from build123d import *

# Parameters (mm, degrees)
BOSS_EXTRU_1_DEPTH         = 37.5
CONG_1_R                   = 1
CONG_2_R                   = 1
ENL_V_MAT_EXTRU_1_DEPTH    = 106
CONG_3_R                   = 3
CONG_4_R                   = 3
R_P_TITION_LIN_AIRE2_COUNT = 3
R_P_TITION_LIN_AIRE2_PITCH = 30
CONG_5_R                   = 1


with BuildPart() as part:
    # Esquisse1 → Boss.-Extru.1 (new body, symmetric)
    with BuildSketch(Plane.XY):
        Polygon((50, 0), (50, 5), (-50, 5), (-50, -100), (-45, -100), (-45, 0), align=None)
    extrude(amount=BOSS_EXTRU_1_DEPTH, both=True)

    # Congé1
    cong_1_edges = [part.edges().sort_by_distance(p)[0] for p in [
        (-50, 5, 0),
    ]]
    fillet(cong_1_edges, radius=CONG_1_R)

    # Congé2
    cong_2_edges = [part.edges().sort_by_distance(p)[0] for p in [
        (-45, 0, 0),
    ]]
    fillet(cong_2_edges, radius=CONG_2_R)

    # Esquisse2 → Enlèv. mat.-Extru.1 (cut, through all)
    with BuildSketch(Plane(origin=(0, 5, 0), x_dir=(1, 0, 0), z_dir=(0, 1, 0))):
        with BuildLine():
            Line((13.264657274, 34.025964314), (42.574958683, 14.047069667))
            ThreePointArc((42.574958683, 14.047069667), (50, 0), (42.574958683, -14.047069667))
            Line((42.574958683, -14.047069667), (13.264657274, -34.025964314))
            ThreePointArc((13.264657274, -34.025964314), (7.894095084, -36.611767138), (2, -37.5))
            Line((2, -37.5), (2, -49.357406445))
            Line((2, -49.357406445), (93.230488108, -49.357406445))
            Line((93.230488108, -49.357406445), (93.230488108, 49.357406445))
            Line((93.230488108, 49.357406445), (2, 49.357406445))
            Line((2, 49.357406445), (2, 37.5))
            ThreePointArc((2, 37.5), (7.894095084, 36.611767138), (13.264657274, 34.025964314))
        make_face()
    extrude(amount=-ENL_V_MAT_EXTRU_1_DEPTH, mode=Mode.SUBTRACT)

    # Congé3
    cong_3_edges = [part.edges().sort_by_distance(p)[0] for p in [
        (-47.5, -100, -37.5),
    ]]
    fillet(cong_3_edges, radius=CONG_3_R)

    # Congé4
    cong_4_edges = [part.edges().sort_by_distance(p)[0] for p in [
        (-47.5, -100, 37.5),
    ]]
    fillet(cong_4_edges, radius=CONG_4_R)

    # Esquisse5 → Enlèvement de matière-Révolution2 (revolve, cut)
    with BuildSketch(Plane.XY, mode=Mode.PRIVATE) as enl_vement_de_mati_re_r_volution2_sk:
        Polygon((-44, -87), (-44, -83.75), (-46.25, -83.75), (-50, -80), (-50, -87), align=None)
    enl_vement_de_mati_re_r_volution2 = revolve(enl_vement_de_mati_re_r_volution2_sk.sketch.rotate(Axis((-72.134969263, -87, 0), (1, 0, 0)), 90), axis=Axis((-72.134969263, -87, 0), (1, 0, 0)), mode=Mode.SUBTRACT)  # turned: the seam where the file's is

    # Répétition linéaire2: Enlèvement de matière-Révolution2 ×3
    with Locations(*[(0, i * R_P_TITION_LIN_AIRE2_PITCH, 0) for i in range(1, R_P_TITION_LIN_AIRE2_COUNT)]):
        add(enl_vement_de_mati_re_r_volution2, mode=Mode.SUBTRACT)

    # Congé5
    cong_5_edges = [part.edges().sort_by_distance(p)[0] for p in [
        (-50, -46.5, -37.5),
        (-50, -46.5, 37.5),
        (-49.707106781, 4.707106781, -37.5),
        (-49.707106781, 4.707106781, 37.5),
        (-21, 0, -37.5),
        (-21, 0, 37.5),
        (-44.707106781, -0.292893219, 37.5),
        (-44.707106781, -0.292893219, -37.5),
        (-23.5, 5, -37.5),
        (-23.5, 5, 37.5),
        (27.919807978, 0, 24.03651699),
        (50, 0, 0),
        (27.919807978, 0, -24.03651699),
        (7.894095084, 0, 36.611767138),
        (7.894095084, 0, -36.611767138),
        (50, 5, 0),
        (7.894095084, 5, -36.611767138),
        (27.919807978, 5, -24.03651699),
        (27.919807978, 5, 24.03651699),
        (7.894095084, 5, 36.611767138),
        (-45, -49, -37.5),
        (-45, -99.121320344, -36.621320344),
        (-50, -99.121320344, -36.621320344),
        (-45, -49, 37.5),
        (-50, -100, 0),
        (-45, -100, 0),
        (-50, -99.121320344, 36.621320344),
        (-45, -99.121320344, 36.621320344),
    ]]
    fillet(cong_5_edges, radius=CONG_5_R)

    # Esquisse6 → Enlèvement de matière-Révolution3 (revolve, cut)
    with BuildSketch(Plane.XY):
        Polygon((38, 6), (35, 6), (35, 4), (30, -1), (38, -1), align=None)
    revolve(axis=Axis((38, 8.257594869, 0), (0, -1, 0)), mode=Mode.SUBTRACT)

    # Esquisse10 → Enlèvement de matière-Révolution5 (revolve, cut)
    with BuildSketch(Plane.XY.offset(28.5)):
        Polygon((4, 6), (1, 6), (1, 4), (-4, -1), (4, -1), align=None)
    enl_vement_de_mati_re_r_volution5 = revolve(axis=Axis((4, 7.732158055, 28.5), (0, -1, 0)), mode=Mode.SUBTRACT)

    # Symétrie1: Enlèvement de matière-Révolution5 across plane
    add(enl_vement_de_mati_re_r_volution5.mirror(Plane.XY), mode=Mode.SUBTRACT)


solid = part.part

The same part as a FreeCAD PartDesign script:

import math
import FreeCAD as App
import Part
import Sketcher

V = App.Vector
Q = App.Units.Quantity


def edges_at(feature, points):
    """Names of the edges that pass closest to the given points."""
    edges = feature.Shape.Edges
    near = lambda p: min(range(len(edges)), key=lambda i: edges[i].distToShape(Part.Vertex(*p))[0])
    return sorted({f"Edge{near(p) + 1}" for p in points})


def add_polygon(sketch, points):
    """Adds a closed chain of lines whose ends are joined by coincident constraints."""
    first, n = sketch.GeometryCount, len(points)
    for a, b in zip(points, points[1:] + points[:1]):
        sketch.addGeometry(Part.LineSegment(App.Vector(*a, 0), App.Vector(*b, 0)), False)
    for i in range(n):
        sketch.addConstraint(Sketcher.Constraint("Coincident", first + i, 2, first + (i + 1) % n, 1))

doc = App.newDocument("Part")
body = doc.addObject("PartDesign::Body", "Body")

# Sketch on XY plane
sketch1 = doc.addObject("Sketcher::SketchObject", "Sketch")
body.addObject(sketch1)
sketch1.AttachmentSupport = (doc.XY_Plane, [""])
sketch1.MapMode = "FlatFace"
add_polygon(sketch1, [(50, 0), (50, 5), (-50, 5), (-50, -100), (-45, -100), (-45, 0)])  # lines 0-5
sketch1.addConstraint(Sketcher.Constraint("Vertical", 0))
sketch1.addConstraint(Sketcher.Constraint("Horizontal", 1))
sketch1.addConstraint(Sketcher.Constraint("Vertical", 2))
sketch1.addConstraint(Sketcher.Constraint("Horizontal", 3))
sketch1.addConstraint(Sketcher.Constraint("Vertical", 4))
sketch1.addConstraint(Sketcher.Constraint("Horizontal", 5))
sketch1.addConstraint(Sketcher.Constraint("PointOnObject", 4, 2, -1))
sketch1.addConstraint(Sketcher.Constraint("Equal", 3, 0))
sketch1.addConstraint(Sketcher.Constraint("Equal", 1, 4))
sketch1.addConstraint(Sketcher.Constraint("DistanceX", 1, 2, 1, 1, 100.0))
sketch1.addConstraint(Sketcher.Constraint("DistanceX", 3, 1, 3, 2, 5.0))
sketch1.addConstraint(Sketcher.Constraint("DistanceX", -1, 1, 0, 2, 50.0))
pad1 = doc.addObject("PartDesign::Pad", "Pad")
body.addObject(pad1)
pad1.Profile = sketch1
pad1.Length = 75
pad1.Midplane = True
doc.recompute()

fillet = doc.addObject("PartDesign::Fillet", "Fillet")
body.addObject(fillet)
fillet.Base = (pad1, edges_at(pad1, [(-50, 5, 0)]))
fillet.Radius = 1
doc.recompute()

fillet2 = doc.addObject("PartDesign::Fillet", "Fillet001")
body.addObject(fillet2)
fillet2.Base = (fillet, edges_at(fillet, [(-45, 0, 0)]))
fillet2.Radius = 1

# Sketch on XZ plane
sketch2 = doc.addObject("Sketcher::SketchObject", "Sketch001")
body.addObject(sketch2)
sketch2.AttachmentSupport = (doc.XZ_Plane, [""])
sketch2.MapMode = "FlatFace"
sketch2.AttachmentOffset = App.Placement(V(0, 0, -5), App.Rotation())
sketch2.addGeometry(Part.LineSegment(V(13, -34, 0), V(43, -14, 0)), False)
sketch2.addGeometry(Part.ArcOfCircle(Part.Circle(V(33, 0, 0), V(0, 0, 1), 17), math.radians(-56), math.radians(56)), False)
sketch2.addGeometry(Part.LineSegment(V(43, 14, 0), V(13, 34, 0)), False)
sketch2.addGeometry(Part.ArcOfCircle(Part.Circle(V(2, 17, 0), V(0, 0, 1), 20), math.radians(56), math.radians(90)), False)
sketch2.addGeometry(Part.LineSegment(V(2, 38, 0), V(2, 49, 0)), False)
sketch2.addGeometry(Part.LineSegment(V(2, 49, 0), V(93, 49, 0)), False)
sketch2.addGeometry(Part.LineSegment(V(93, 49, 0), V(93, -49, 0)), False)
sketch2.addGeometry(Part.LineSegment(V(93, -49, 0), V(2, -49, 0)), False)
sketch2.addGeometry(Part.LineSegment(V(2, -49, 0), V(2, -38, 0)), False)
sketch2.addGeometry(Part.ArcOfCircle(Part.Circle(V(2, -17, 0), V(0, 0, 1), 20), math.radians(-90), math.radians(-56)), False)
sketch2.addConstraint(Sketcher.Constraint("Tangent", 0, 2, 1, 1))
sketch2.addConstraint(Sketcher.Constraint("Tangent", 1, 2, 2, 1))
sketch2.addConstraint(Sketcher.Constraint("Tangent", 2, 2, 3, 1))
sketch2.addConstraint(Sketcher.Constraint("Coincident", 3, 2, 4, 1))
sketch2.addConstraint(Sketcher.Constraint("Coincident", 4, 2, 5, 1))
sketch2.addConstraint(Sketcher.Constraint("Coincident", 5, 2, 6, 1))
sketch2.addConstraint(Sketcher.Constraint("Coincident", 6, 2, 7, 1))
sketch2.addConstraint(Sketcher.Constraint("Coincident", 7, 2, 8, 1))
sketch2.addConstraint(Sketcher.Constraint("Coincident", 8, 2, 9, 1))
sketch2.addConstraint(Sketcher.Constraint("Tangent", 9, 2, 0, 1))
sketch2.addConstraint(Sketcher.Constraint("Vertical", 4))
sketch2.addConstraint(Sketcher.Constraint("Horizontal", 5))
sketch2.addConstraint(Sketcher.Constraint("Vertical", 6))
sketch2.addConstraint(Sketcher.Constraint("Horizontal", 7))
sketch2.addConstraint(Sketcher.Constraint("Vertical", 8))
sketch2.addConstraint(Sketcher.Constraint("Equal", 3, 9))
sketch2.addConstraint(Sketcher.Constraint("Symmetric", 3, 3, 9, 3, -1))
sketch2.addConstraint(Sketcher.Constraint("Symmetric", 4, 2, 7, 2, -1))
sketch2.addConstraint(Sketcher.Constraint("PointOnObject", 1, 3, -1))
sketch2.addConstraint(Sketcher.Constraint("Vertical", 9, 3, 3, 2))
sketch2.addConstraint(Sketcher.Constraint("Radius", 1, 17.0))
sketch2.addConstraint(Sketcher.Constraint("Radius", 3, 20.0))
sketch2.addConstraint(Sketcher.Constraint("DistanceX", -1, 1, 1, 3, 33.0))
sketch2.addConstraint(Sketcher.Constraint("DistanceX", -1, 1, 3, 3, 2.0))
sketch2.addConstraint(Sketcher.Constraint("DistanceY", 9, 3, 3, 3, 35.0))
sketch2.addConstraint(Sketcher.Constraint("DistanceX", 5, 1, 5, 2, 91.230488))
sketch2.addConstraint(Sketcher.Constraint("DistanceY", 4, 1, 4, 2, 11.857406))
pocket1 = doc.addObject("PartDesign::Pocket", "Pocket")
body.addObject(pocket1)
pocket1.Profile = sketch2
pocket1.Type = "ThroughAll"
pocket1.Reversed = True
doc.recompute()

fillet3 = doc.addObject("PartDesign::Fillet", "Fillet002")
body.addObject(fillet3)
fillet3.Base = (pocket1, edges_at(pocket1, [(-47.5, -100, -37.5)]))
fillet3.Radius = 3
doc.recompute()

fillet4 = doc.addObject("PartDesign::Fillet", "Fillet003")
body.addObject(fillet4)
fillet4.Base = (fillet3, edges_at(fillet3, [(-47.5, -100, 37.5)]))
fillet4.Radius = 3

# Sketch on XY plane
sketch3 = doc.addObject("Sketcher::SketchObject", "Sketch002")
body.addObject(sketch3)
sketch3.AttachmentSupport = (doc.XY_Plane, [""])
sketch3.MapMode = "FlatFace"
add_polygon(sketch3, [(-44, -87), (-44, -83.8), (-46.2, -83.8), (-50, -80), (-50, -87)])  # lines 0-4
sketch3.addGeometry(Part.LineSegment(V(-50, -87, 0), V(-44, -87, 0)), True)  # axis
sketch3.addConstraint(Sketcher.Constraint("Vertical", 0))
sketch3.addConstraint(Sketcher.Constraint("Horizontal", 1))
sketch3.addConstraint(Sketcher.Constraint("Vertical", 3))
sketch3.addConstraint(Sketcher.Constraint("Horizontal", 4))
sketch3.addConstraint(Sketcher.Constraint("Horizontal", 5))
sketch3.addConstraint(Sketcher.Constraint("Coincident", 5, 1, 3, 2))
sketch3.addConstraint(Sketcher.Constraint("Vertical", 0, 2, 5, 2))
sketch3.addConstraint(Sketcher.Constraint("DistanceX", 4, 1, 4, 2, 6.0))
sketch3.addConstraint(Sketcher.Constraint("DistanceY", 3, 2, 3, 1, 7.0))
sketch3.addConstraint(Sketcher.Constraint("Angle", 2, Q("135 deg")))
sketch3.addConstraint(Sketcher.Constraint("DistanceX", 0, 2, -1, 1, 44.0))
sketch3.addConstraint(Sketcher.Constraint("DistanceY", 2, 2, -1, 1, 80.0))
sketch3.addConstraint(Sketcher.Constraint("DistanceX", 1, 2, 1, 1, 2.25))
groove = doc.addObject("PartDesign::Groove", "Groove")
body.addObject(groove)
groove.Profile = sketch3
groove.ReferenceAxis = (sketch3, ["Axis0"])
groove.Angle = 360
doc.recompute()

linearpattern = doc.addObject("PartDesign::LinearPattern", "LinearPattern")
body.addObject(linearpattern)
linearpattern.Originals = [groove]
linearpattern.Direction = (doc.Y_Axis, [""])
linearpattern.Mode = "offset"
linearpattern.Offset = 30
linearpattern.Occurrences = 3
body.Tip = linearpattern
doc.recompute()

fillet5 = doc.addObject("PartDesign::Fillet", "Fillet004")
body.addObject(fillet5)
fillet5.Base = (linearpattern, edges_at(linearpattern, [
    (-50, -46.5, -37.5),
    (-50, -46.5, 37.5),
    (-49.707, 4.707, -37.5),
    (-49.707, 4.707, 37.5),
    (-21, 0, -37.5),
    (-21, 0, 37.5),
    (-44.707, -0.293, 37.5),
    (-44.707, -0.293, -37.5),
    (-23.5, 5, -37.5),
    (-23.5, 5, 37.5),
    (27.92, 0, 24.037),
    (50, 0, 0),
    (27.92, 0, -24.037),
    (7.894, 0, 36.612),
    (7.894, 0, -36.612),
    (50, 5, 0),
    (7.894, 5, -36.612),
    (27.92, 5, -24.037),
    (27.92, 5, 24.037),
    (7.894, 5, 36.612),
    (-45, -49, -37.5),
    (-45, -99.121, -36.621),
    (-50, -99.121, -36.621),
    (-45, -49, 37.5),
    (-50, -100, 0),
    (-45, -100, 0),
    (-50, -99.121, 36.621),
    (-45, -99.121, 36.621),
]))
fillet5.Radius = 1

# Sketch on XY plane
sketch4 = doc.addObject("Sketcher::SketchObject", "Sketch003")
body.addObject(sketch4)
sketch4.AttachmentSupport = (doc.XY_Plane, [""])
sketch4.MapMode = "FlatFace"
add_polygon(sketch4, [(38, 6), (35, 6), (35, 4), (30, -1), (38, -1)])  # lines 0-4
sketch4.addGeometry(Part.LineSegment(V(38, 6, 0), V(38, -1, 0)), True)  # axis
sketch4.addConstraint(Sketcher.Constraint("Horizontal", 0))
sketch4.addConstraint(Sketcher.Constraint("Vertical", 1))
sketch4.addConstraint(Sketcher.Constraint("Horizontal", 3))
sketch4.addConstraint(Sketcher.Constraint("Vertical", 4))
sketch4.addConstraint(Sketcher.Constraint("Vertical", 5))
sketch4.addConstraint(Sketcher.Constraint("Coincident", 5, 1, 4, 2))
sketch4.addConstraint(Sketcher.Constraint("Horizontal", 2, 2, 5, 2))
sketch4.addConstraint(Sketcher.Constraint("DistanceX", 0, 2, 0, 1, 3.0))
sketch4.addConstraint(Sketcher.Constraint("DistanceX", 3, 1, 3, 2, 8.0))
sketch4.addConstraint(Sketcher.Constraint("DistanceY", 1, 2, 1, 1, 2.0))
sketch4.addConstraint(Sketcher.Constraint("DistanceY", 4, 1, 4, 2, 7.0))
sketch4.addConstraint(Sketcher.Constraint("DistanceX", -1, 1, 0, 2, 35.0))
sketch4.addConstraint(Sketcher.Constraint("DistanceY", -1, 1, 0, 2, 6.0))
groove2 = doc.addObject("PartDesign::Groove", "Groove001")
body.addObject(groove2)
groove2.Profile = sketch4
groove2.ReferenceAxis = (sketch4, ["Axis0"])
groove2.Angle = 360

# Sketch on XY plane
sketch5 = doc.addObject("Sketcher::SketchObject", "Sketch004")
body.addObject(sketch5)
sketch5.AttachmentSupport = (doc.XY_Plane, [""])
sketch5.MapMode = "FlatFace"
sketch5.AttachmentOffset = App.Placement(V(0, 0, 28.5), App.Rotation())
add_polygon(sketch5, [(4, 6), (1, 6), (1, 4), (-4, -1), (4, -1)])  # lines 0-4
sketch5.addGeometry(Part.LineSegment(V(4, 6, 0), V(4, -1, 0)), True)  # axis
sketch5.addConstraint(Sketcher.Constraint("Horizontal", 0))
sketch5.addConstraint(Sketcher.Constraint("Vertical", 1))
sketch5.addConstraint(Sketcher.Constraint("Horizontal", 3))
sketch5.addConstraint(Sketcher.Constraint("Vertical", 4))
sketch5.addConstraint(Sketcher.Constraint("Vertical", 5))
sketch5.addConstraint(Sketcher.Constraint("Coincident", 5, 1, 4, 2))
sketch5.addConstraint(Sketcher.Constraint("Symmetric", 2, 2, 5, 2, -2))
sketch5.addConstraint(Sketcher.Constraint("DistanceX", 0, 2, 0, 1, 3.0))
sketch5.addConstraint(Sketcher.Constraint("DistanceX", 3, 1, 3, 2, 8.0))
sketch5.addConstraint(Sketcher.Constraint("DistanceY", 1, 2, 1, 1, 2.0))
sketch5.addConstraint(Sketcher.Constraint("DistanceY", 4, 1, 4, 2, 7.0))
sketch5.addConstraint(Sketcher.Constraint("DistanceY", -1, 1, 0, 2, 6.0))
groove3 = doc.addObject("PartDesign::Groove", "Groove002")
body.addObject(groove3)
groove3.Profile = sketch5
groove3.ReferenceAxis = (sketch5, ["Axis0"])
groove3.Angle = 360
doc.recompute()

mirrored = doc.addObject("PartDesign::Mirrored", "Mirrored")
body.addObject(mirrored)
mirrored.Originals = [groove3]
mirrored.MirrorPlane = (doc.XY_Plane, [""])
body.Tip = mirrored

doc.recompute()
